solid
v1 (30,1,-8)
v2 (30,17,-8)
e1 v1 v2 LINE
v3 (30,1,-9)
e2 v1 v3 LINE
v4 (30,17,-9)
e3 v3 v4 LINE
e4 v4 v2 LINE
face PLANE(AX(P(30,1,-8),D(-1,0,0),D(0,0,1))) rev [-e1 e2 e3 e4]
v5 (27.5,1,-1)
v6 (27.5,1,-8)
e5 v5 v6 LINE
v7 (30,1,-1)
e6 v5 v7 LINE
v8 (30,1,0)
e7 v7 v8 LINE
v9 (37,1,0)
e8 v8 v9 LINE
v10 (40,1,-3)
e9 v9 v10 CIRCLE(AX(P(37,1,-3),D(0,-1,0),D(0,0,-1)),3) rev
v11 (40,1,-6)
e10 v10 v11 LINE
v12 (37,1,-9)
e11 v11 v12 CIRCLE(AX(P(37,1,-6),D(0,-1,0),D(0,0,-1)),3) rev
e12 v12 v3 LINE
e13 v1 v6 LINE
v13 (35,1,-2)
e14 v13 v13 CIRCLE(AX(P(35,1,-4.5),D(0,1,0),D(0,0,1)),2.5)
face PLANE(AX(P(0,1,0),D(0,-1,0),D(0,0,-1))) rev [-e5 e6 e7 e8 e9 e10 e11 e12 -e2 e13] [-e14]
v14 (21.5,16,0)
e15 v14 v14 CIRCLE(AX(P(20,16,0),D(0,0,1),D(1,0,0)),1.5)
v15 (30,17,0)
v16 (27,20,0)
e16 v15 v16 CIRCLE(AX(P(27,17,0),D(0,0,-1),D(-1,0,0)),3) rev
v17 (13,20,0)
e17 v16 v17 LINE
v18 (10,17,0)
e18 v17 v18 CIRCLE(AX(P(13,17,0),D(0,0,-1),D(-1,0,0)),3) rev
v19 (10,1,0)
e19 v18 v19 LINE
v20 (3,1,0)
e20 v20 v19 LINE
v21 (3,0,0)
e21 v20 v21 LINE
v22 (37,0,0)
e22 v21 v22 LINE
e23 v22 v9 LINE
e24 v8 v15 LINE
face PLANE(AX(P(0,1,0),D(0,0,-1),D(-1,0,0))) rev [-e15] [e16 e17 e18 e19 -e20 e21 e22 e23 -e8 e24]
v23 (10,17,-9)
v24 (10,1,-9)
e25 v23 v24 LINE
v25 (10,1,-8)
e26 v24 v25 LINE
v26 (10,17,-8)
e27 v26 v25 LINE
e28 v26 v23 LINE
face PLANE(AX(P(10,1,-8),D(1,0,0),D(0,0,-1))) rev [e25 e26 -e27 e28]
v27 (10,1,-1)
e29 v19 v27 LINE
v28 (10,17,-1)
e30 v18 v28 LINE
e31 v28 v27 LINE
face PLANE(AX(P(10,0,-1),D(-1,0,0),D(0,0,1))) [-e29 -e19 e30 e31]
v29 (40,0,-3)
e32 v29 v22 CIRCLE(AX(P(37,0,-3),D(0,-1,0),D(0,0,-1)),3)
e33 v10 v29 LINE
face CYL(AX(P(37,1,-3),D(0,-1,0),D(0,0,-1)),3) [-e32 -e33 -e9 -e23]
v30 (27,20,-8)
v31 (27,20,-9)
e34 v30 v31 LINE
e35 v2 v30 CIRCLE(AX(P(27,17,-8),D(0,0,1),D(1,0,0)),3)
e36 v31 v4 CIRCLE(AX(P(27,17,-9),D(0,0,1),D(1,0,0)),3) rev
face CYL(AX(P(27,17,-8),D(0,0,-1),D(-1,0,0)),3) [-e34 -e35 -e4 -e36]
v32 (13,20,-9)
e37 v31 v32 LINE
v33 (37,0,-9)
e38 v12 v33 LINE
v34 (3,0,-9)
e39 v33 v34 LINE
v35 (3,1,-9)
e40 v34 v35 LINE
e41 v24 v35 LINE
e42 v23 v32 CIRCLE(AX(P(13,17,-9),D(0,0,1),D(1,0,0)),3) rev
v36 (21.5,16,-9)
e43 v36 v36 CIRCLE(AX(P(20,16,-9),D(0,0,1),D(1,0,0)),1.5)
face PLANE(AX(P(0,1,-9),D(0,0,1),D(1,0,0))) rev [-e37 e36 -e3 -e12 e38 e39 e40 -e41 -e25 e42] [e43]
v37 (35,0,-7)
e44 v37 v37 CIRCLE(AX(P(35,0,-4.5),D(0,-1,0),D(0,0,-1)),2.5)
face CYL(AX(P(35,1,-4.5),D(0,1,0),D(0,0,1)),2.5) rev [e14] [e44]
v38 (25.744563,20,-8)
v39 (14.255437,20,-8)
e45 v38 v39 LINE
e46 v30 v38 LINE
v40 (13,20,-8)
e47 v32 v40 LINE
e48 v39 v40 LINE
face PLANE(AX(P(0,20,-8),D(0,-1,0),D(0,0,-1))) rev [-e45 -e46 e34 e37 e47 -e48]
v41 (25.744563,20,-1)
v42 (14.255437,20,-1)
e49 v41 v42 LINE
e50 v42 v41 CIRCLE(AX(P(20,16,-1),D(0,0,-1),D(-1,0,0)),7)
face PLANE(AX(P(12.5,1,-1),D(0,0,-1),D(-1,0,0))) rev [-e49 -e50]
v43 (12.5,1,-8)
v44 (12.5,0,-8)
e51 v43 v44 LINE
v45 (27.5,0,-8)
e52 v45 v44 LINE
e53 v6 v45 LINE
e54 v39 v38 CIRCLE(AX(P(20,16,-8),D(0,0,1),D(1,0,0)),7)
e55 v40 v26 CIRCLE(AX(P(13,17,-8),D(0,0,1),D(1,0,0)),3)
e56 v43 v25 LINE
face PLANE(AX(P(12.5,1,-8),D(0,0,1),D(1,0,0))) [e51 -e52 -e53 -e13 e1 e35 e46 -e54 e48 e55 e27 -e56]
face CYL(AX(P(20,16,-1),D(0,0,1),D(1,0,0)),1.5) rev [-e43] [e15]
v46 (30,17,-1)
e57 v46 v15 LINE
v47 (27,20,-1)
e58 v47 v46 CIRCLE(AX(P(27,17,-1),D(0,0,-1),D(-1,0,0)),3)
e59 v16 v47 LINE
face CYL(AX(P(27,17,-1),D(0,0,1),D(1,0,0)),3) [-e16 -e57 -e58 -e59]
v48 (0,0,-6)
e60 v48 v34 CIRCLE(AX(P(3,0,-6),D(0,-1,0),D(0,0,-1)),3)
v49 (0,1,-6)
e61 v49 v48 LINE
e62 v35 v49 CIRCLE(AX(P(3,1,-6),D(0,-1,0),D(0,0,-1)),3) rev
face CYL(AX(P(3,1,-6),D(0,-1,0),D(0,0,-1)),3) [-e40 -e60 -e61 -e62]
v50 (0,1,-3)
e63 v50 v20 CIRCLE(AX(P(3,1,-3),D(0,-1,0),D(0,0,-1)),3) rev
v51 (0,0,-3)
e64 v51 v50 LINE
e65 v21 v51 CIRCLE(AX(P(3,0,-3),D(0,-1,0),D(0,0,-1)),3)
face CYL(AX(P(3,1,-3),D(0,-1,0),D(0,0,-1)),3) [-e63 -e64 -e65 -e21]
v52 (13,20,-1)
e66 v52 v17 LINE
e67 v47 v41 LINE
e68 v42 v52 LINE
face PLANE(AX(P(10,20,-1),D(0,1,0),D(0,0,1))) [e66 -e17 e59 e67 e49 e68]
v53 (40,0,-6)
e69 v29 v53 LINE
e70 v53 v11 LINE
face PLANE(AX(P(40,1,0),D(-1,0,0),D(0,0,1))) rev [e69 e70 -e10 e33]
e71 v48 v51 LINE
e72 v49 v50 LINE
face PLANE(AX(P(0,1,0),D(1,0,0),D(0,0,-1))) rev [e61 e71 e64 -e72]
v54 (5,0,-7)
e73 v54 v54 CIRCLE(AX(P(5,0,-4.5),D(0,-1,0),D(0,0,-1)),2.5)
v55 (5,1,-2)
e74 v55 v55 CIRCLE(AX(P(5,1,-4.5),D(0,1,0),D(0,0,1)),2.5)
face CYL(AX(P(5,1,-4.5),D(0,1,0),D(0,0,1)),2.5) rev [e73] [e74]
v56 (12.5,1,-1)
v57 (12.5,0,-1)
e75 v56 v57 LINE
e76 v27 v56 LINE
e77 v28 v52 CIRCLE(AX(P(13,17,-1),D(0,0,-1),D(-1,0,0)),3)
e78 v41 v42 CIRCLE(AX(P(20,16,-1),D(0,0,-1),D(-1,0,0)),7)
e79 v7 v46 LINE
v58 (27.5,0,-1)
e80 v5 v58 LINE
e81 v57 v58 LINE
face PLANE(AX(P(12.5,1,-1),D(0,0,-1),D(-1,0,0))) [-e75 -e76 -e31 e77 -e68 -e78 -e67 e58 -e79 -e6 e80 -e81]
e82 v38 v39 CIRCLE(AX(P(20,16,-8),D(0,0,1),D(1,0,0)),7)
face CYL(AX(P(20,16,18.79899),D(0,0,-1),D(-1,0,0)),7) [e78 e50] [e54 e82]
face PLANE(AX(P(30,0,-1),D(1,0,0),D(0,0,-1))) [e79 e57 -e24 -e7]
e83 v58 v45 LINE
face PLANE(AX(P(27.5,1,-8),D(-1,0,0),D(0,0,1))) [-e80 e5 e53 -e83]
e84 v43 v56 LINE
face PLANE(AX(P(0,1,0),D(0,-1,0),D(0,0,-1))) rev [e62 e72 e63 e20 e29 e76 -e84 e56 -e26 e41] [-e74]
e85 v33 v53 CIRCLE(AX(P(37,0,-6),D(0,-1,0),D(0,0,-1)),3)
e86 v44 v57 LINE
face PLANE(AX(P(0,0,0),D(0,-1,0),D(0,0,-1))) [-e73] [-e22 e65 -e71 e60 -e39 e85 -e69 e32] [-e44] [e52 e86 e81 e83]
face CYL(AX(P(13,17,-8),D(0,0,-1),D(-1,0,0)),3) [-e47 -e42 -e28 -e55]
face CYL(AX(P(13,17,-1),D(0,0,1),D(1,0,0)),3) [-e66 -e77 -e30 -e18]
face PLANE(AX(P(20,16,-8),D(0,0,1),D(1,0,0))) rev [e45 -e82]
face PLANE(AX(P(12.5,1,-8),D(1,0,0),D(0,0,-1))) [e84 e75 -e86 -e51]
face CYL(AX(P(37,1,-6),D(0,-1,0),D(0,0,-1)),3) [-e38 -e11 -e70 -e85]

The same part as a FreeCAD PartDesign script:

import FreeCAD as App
import Part
import Sketcher

V = App.Vector


def edges_at(feature, points):
    """Names of the edges that pass closest to the given points."""
    edges = feature.Shape.Edges
    near = lambda p: min(range(len(edges)), key=lambda i: edges[i].distToShape(Part.Vertex(*p))[0])
    return sorted({f"Edge{near(p) + 1}" for p in points})

doc = App.newDocument("Part")
body = doc.addObject("PartDesign::Body", "Body")

sketch1 = body.newObject("Sketcher::SketchObject", "Sketch")
sketch1.AttachmentSupport = (doc.getObject("XZ_Plane"), [""])
sketch1.MapMode = "FlatFace"
sketch1.addGeometry([
    Part.LineSegment(V(0, -9, 0), V(0, 0, 0)),
    Part.LineSegment(V(0, 0, 0), V(40, 0, 0)),
    Part.LineSegment(V(40, 0, 0), V(40, -9, 0)),
    Part.LineSegment(V(40, -9, 0), V(0, -9, 0)),
    Part.LineSegment(V(28, -1, 0), V(12, -1, 0)),
    Part.LineSegment(V(12, -1, 0), V(12, -8, 0)),
    Part.LineSegment(V(12, -8, 0), V(28, -8, 0)),
    Part.LineSegment(V(28, -8, 0), V(28, -1, 0)),
], False)
sketch1.addConstraint([
    Sketcher.Constraint("Coincident", 0, 2, 1, 1),
    Sketcher.Constraint("Coincident", 1, 2, 2, 1),
    Sketcher.Constraint("Coincident", 2, 2, 3, 1),
    Sketcher.Constraint("Coincident", 3, 2, 0, 1),
    Sketcher.Constraint("Coincident", 4, 2, 5, 1),
    Sketcher.Constraint("Coincident", 5, 2, 6, 1),
    Sketcher.Constraint("Coincident", 6, 2, 7, 1),
    Sketcher.Constraint("Coincident", 7, 2, 4, 1),
    Sketcher.Constraint("Vertical", 0),
    Sketcher.Constraint("Horizontal", 1),
    Sketcher.Constraint("Vertical", 2),
    Sketcher.Constraint("Horizontal", 3),
    Sketcher.Constraint("Horizontal", 4),
    Sketcher.Constraint("Vertical", 5),
    Sketcher.Constraint("Horizontal", 6),
    Sketcher.Constraint("Vertical", 7),
    Sketcher.Constraint("Coincident", 0, 2, -1, 1),
    Sketcher.Constraint("DistanceX", 1, 1, 1, 2, 40.0),
    Sketcher.Constraint("DistanceX", 4, 2, 4, 1, 15.0),
    Sketcher.Constraint("DistanceY", 0, 1, 0, 2, 9.0),
    Sketcher.Constraint("DistanceY", 5, 2, 5, 1, 7.0),
    Sketcher.Constraint("DistanceY", 4, 2, -1, 1, 1.0),
    Sketcher.Constraint("DistanceX", -1, 1, 4, 2, 12.5),
])
pad1 = body.newObject("PartDesign::Pad", "Pad")
pad1.Profile = sketch1
pad1.Length = 1
pad1.Reversed = True

sketch2 = body.newObject("Sketcher::SketchObject", "Sketch001")
sketch2.AttachmentSupport = (doc.getObject("XY_Plane"), [""])
sketch2.MapMode = "FlatFace"
sketch2.addGeometry([
    Part.LineSegment(V(10, 20, 0), V(10, 0, 0)),
    Part.LineSegment(V(10, 0, 0), V(30, 0, 0)),
    Part.LineSegment(V(30, 0, 0), V(30, 20, 0)),
    Part.LineSegment(V(30, 20, 0), V(10, 20, 0)),
    Part.Circle(V(20, 16, 0), V(0, 0, 1), 1.5),
], False)
sketch2.addConstraint([
    Sketcher.Constraint("Coincident", 0, 2, 1, 1),
    Sketcher.Constraint("Coincident", 1, 2, 2, 1),
    Sketcher.Constraint("Coincident", 2, 2, 3, 1),
    Sketcher.Constraint("Coincident", 3, 2, 0, 1),
    Sketcher.Constraint("Vertical", 0),
    Sketcher.Constraint("Horizontal", 1),
    Sketcher.Constraint("Vertical", 2),
    Sketcher.Constraint("Horizontal", 3),
    Sketcher.Constraint("PointOnObject", 0, 2, -1),
    Sketcher.Constraint("Equal", 3, 0),
    Sketcher.Constraint("Diameter", 4, 3.0),
    Sketcher.Constraint("DistanceX", 1, 1, 1, 2, 20.0),
    Sketcher.Constraint("DistanceX", -1, 1, 4, 3, 20.0),
    Sketcher.Constraint("DistanceY", -1, 1, 4, 3, 16.0),
    Sketcher.Constraint("DistanceX", -1, 1, 0, 2, 10.0),
])
pad2 = body.newObject("PartDesign::Pad", "Pad001")
pad2.Profile = sketch2
pad2.Length = 1
pad2.Reversed = True

sketch3 = body.newObject("Sketcher::SketchObject", "Sketch002")
sketch3.AttachmentSupport = (doc.getObject("XY_Plane"), [""])
sketch3.MapMode = "FlatFace"
sketch3.AttachmentOffset = App.Placement(V(0, 0, -8), App.Rotation())
sketch3.addGeometry([
    Part.LineSegment(V(10, 20, 0), V(10, 0, 0)),
    Part.LineSegment(V(10, 0, 0), V(30, 0, 0)),
    Part.LineSegment(V(30, 0, 0), V(30, 20, 0)),
    Part.LineSegment(V(30, 20, 0), V(10, 20, 0)),
    Part.Circle(V(20, 16, 0), V(0, 0, 1), 1.5),
], False)
sketch3.addConstraint([
    Sketcher.Constraint("Coincident", 0, 2, 1, 1),
    Sketcher.Constraint("Coincident", 1, 2, 2, 1),
    Sketcher.Constraint("Coincident", 2, 2, 3, 1),
    Sketcher.Constraint("Coincident", 3, 2, 0, 1),
    Sketcher.Constraint("Vertical", 0),
    Sketcher.Constraint("Horizontal", 1),
    Sketcher.Constraint("Vertical", 2),
    Sketcher.Constraint("Horizontal", 3),
    Sketcher.Constraint("PointOnObject", 0, 2, -1),
    Sketcher.Constraint("Equal", 3, 0),
    Sketcher.Constraint("Diameter", 4, 3.0),
    Sketcher.Constraint("DistanceX", 1, 1, 1, 2, 20.0),
    Sketcher.Constraint("DistanceX", -1, 1, 4, 3, 20.0),
    Sketcher.Constraint("DistanceY", -1, 1, 4, 3, 16.0),
    Sketcher.Constraint("DistanceX", -1, 1, 0, 2, 10.0),
])
pad3 = body.newObject("PartDesign::Pad", "Pad002")
pad3.Profile = sketch3
pad3.Length = 1
pad3.Reversed = True

sketch4 = body.newObject("Sketcher::SketchObject", "Sketch003")
sketch4.AttachmentSupport = (doc.getObject("XZ_Plane"), [""])
sketch4.MapMode = "FlatFace"
sketch4.AttachmentOffset = App.Placement(V(0, 0, -1), App.Rotation())
sketch4.addGeometry([
    Part.Circle(V(35, -4.5, 0), V(0, 0, 1), 2.5),
    Part.Circle(V(5, -4.5, 0), V(0, 0, 1), 2.5),
], False)
sketch4.addConstraint([
    Sketcher.Constraint("Equal", 0, 1),
    Sketcher.Constraint("Horizontal", 0, 3, 1, 3),
    Sketcher.Constraint("Diameter", 0, 5.0),
    Sketcher.Constraint("DistanceX", -1, 1, 0, 3, 35.0),
    Sketcher.Constraint("DistanceX", -1, 1, 1, 3, 5.0),
    Sketcher.Constraint("DistanceY", 0, 3, -1, 1, 4.5),
])
doc.recompute()
hole = body.newObject("PartDesign::Hole", "Hole")
hole.Profile = sketch4
hole.ThreadType = "None"
hole.Diameter = 5
hole.DepthType = "Dimension"
hole.Depth = 6
hole.DrillPoint = "Flat"
hole.Reversed = True

sketch5 = body.newObject("Sketcher::SketchObject", "Sketch004")
sketch5.AttachmentSupport = (doc.getObject("XY_Plane"), [""])
sketch5.MapMode = "FlatFace"
sketch5.AttachmentOffset = App.Placement(V(0, 0, -1), App.Rotation())
sketch5.addGeometry([
    Part.Circle(V(20, 16, 0), V(0, 0, 1), 7),
    Part.Circle(V(20, 16, 0), V(0, 0, 1), 1.5),
], False)
sketch5.addConstraint([
    Sketcher.Constraint("Coincident", 1, 3, 0, 3),
    Sketcher.Constraint("Diameter", 0, 14.0),
    Sketcher.Constraint("Diameter", 1, 3.0),
    Sketcher.Constraint("DistanceX", -1, 1, 0, 3, 20.0),
    Sketcher.Constraint("DistanceY", -1, 1, 0, 3, 16.0),
])
pad4 = body.newObject("PartDesign::Pad", "Pad003")
pad4.Profile = sketch5
pad4.Length = 7
pad4.Reversed = True
doc.recompute()

fillet = body.newObject("PartDesign::Fillet", "Fillet")
fillet.Base = (pad4, edges_at(pad4, [
    (30, 20, -0.5),
    (10, 20, -0.5),
    (10, 20, -8.5),
    (30, 20, -8.5),
    (0, 0.5, -9),
    (40, 0.5, -9),
    (40, 0.5, 0),
    (0, 0.5, 0),
]))
fillet.Radius = 3

doc.recompute()
